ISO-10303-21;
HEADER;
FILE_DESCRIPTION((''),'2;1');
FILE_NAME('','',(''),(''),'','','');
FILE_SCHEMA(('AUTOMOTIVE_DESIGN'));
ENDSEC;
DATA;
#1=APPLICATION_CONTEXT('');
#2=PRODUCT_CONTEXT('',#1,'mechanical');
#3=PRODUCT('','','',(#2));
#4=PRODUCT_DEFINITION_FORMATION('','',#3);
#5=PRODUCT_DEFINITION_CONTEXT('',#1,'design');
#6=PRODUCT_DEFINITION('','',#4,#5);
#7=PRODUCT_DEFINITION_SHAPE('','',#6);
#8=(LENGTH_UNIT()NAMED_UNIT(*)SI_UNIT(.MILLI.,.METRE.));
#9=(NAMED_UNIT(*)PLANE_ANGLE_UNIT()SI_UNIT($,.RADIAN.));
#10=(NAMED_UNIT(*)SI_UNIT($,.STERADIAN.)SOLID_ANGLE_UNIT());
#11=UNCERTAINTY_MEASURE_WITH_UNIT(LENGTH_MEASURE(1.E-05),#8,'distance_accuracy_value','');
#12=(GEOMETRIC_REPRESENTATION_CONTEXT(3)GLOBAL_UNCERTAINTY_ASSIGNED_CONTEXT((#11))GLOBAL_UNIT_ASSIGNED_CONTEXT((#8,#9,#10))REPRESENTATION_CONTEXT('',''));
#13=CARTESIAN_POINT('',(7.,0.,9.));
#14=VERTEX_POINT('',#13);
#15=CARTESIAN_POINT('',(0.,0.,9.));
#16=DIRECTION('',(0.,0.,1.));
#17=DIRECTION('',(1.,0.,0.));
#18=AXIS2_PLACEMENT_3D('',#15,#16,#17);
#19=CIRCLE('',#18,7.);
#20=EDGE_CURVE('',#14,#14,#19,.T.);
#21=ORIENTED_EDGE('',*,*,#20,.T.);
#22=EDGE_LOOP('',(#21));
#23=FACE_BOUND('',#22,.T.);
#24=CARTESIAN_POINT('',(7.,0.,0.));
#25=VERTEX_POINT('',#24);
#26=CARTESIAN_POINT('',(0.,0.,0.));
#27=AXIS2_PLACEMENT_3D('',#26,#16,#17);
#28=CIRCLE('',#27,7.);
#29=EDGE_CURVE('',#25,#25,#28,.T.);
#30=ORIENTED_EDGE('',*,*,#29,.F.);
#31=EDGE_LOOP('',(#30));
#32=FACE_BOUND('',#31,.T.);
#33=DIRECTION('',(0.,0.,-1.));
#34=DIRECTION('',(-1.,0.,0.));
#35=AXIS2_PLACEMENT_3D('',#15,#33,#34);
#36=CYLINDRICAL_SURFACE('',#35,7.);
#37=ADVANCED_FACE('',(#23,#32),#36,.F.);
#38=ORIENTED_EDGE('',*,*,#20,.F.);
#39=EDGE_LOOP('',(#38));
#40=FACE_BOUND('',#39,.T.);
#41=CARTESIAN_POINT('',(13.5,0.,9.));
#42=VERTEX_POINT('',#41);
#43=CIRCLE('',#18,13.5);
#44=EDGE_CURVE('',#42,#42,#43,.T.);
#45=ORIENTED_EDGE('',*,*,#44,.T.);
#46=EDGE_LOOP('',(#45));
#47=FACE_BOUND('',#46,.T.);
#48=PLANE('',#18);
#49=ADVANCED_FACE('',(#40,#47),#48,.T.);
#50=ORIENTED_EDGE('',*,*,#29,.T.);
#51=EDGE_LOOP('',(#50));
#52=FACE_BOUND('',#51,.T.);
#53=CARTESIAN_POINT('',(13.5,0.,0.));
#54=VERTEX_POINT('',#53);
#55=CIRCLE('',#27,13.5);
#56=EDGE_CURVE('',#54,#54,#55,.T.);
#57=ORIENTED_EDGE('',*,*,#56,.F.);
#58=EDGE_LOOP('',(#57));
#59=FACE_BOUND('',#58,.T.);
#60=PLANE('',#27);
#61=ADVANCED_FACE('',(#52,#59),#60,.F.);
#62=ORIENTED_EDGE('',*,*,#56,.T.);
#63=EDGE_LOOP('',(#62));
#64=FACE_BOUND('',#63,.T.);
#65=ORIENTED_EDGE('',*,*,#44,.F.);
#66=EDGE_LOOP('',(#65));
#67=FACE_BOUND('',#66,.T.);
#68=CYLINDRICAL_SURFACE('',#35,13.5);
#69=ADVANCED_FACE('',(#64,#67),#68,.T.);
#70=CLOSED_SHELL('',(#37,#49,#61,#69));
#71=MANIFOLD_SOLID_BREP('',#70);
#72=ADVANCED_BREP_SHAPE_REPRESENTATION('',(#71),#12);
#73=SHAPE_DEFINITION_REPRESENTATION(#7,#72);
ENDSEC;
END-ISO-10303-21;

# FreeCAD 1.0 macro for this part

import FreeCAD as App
import Part
import Sketcher

doc = App.newDocument("Part")
body = doc.addObject("PartDesign::Body", "Body")

# Sketch on XY plane
sketch1 = body.newObject("Sketcher::SketchObject", "Sketch")
sketch1.AttachmentSupport = (doc.getObject("XY_Plane"), [""])
sketch1.MapMode = "FlatFace"
sketch1.addGeometry([
    Part.Circle(App.Vector(0, 0, 0), App.Vector(0, 0, 1), 14),
    Part.Circle(App.Vector(0, 0, 0), App.Vector(0, 0, 1), 7),
], False)
sketch1.addConstraint([
    Sketcher.Constraint("Coincident", 0, 3, -1, 1),
    Sketcher.Constraint("Coincident", 1, 3, -1, 1),
    Sketcher.Constraint("Diameter", 0, 27.0),
    Sketcher.Constraint("Diameter", 1, 14.0),
])
pad1 = body.newObject("PartDesign::Pad", "Pad")
pad1.Profile = sketch1
pad1.Length = 9

doc.recompute()
